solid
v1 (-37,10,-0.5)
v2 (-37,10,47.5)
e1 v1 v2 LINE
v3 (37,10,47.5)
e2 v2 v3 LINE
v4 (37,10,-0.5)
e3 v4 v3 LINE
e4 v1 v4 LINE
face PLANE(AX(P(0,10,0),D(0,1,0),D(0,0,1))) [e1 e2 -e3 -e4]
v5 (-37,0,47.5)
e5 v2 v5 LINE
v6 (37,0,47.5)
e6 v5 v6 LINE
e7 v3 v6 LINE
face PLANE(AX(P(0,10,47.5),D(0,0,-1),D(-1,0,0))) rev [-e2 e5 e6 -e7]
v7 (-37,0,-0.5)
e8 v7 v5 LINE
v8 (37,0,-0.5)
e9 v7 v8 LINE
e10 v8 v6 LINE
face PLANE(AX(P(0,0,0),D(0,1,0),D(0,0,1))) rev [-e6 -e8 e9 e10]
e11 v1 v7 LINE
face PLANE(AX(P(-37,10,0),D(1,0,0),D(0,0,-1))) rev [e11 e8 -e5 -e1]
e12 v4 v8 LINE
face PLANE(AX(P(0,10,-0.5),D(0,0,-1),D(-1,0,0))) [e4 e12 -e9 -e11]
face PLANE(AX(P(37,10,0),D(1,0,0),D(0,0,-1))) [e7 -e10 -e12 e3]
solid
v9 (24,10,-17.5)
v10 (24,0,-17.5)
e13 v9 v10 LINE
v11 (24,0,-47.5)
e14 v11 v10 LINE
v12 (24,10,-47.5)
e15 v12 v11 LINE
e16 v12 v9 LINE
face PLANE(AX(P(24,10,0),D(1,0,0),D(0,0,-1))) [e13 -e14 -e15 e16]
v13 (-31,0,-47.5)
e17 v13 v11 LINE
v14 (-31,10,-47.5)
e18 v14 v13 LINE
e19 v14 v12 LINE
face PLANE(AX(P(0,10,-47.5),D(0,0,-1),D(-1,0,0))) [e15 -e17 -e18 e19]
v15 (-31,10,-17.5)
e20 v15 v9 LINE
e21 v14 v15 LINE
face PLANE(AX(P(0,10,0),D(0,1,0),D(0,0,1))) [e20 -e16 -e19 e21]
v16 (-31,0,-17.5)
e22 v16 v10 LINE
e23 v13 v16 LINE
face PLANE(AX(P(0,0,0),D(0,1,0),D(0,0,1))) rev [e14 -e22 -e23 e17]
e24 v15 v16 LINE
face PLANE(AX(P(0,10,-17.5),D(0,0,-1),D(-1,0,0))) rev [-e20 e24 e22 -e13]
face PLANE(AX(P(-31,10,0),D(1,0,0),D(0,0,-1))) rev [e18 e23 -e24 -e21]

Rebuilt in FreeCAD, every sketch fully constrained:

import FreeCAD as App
import Part
import Sketcher
Q = App.Units.Quantity


def add_polygon(sketch, points):
    """Adds a closed chain of lines whose ends are joined by coincident constraints."""
    first, n = sketch.GeometryCount, len(points)
    for a, b in zip(points, points[1:] + points[:1]):
        sketch.addGeometry(Part.LineSegment(App.Vector(*a, 0), App.Vector(*b, 0)), False)
    for i in range(n):
        sketch.addConstraint(Sketcher.Constraint("Coincident", first + i, 2, first + (i + 1) % n, 1))

doc = App.newDocument("Part")
params = doc.addObject("Spreadsheet::Sheet", "Params")
for row, (alias, value) in enumerate([
    ("sketch1_width", "74 mm"),
    ("sketch1_height", "48 mm"),
    ("pad1_length", "10 mm"),
    ("sketch2_width", "55 mm"),
    ("sketch2_height", "30 mm"),
    ("pad2_length", "10 mm"),
], start=1):
    params.set(f"A{row}", alias)
    params.set(f"B{row}", "=" + value)
    params.setAlias(f"B{row}", alias)

body = doc.addObject("PartDesign::Body", "Body")

# Sketch on XZ plane
sketch1 = body.newObject("Sketcher::SketchObject", "Sketch")
sketch1.AttachmentSupport = (doc.getObject("XZ_Plane"), [""])
sketch1.MapMode = "FlatFace"
add_polygon(sketch1, [(-37, -0.5), (-37, 47.5), (37, 47.5), (37, -0.5)])  # lines 0-3
sketch1.addConstraint([
    Sketcher.Constraint("Vertical", 0),
    Sketcher.Constraint("Horizontal", 1),
    Sketcher.Constraint("Vertical", 2),
    Sketcher.Constraint("Horizontal", 3),
    Sketcher.Constraint("DistanceX", 1, 1, 1, 2, Q("74 mm")),
    Sketcher.Constraint("DistanceY", 0, 1, 0, 2, Q("48 mm")),
    Sketcher.Constraint("DistanceX", 0, 2, -1, 1, Q("37 mm")),
    Sketcher.Constraint("DistanceY", -1, 1, 0, 2, Q("47.5 mm")),
])
sketch1.setExpression("Constraints[8]", "Params.sketch1_width")
sketch1.setExpression("Constraints[9]", "Params.sketch1_height")
pad1 = body.newObject("PartDesign::Pad", "Pad")
pad1.Profile = sketch1
pad1.setExpression("Length", "Params.pad1_length")
pad1.Reversed = True
body2 = doc.addObject("PartDesign::Body", "Body001")

# Sketch on XZ plane
sketch2 = body2.newObject("Sketcher::SketchObject", "Sketch001")
sketch2.AttachmentSupport = (doc.getObject("XZ_Plane001"), [""])
sketch2.MapMode = "FlatFace"
add_polygon(sketch2, [(-31, -47.5), (-31, -17.5), (24, -17.5), (24, -47.5)])  # lines 0-3
sketch2.addConstraint([
    Sketcher.Constraint("Vertical", 0),
    Sketcher.Constraint("Horizontal", 1),
    Sketcher.Constraint("Vertical", 2),
    Sketcher.Constraint("Horizontal", 3),
    Sketcher.Constraint("DistanceX", 1, 1, 1, 2, Q("55 mm")),
    Sketcher.Constraint("DistanceY", 0, 1, 0, 2, Q("30 mm")),
    Sketcher.Constraint("DistanceX", 0, 2, -1, 1, Q("31 mm")),
    Sketcher.Constraint("DistanceY", 0, 2, -1, 1, Q("17.5 mm")),
])
sketch2.setExpression("Constraints[8]", "Params.sketch2_width")
sketch2.setExpression("Constraints[9]", "Params.sketch2_height")
pad2 = body2.newObject("PartDesign::Pad", "Pad001")
pad2.Profile = sketch2
pad2.setExpression("Length", "Params.pad2_length")
pad2.Reversed = True

doc.recompute()
